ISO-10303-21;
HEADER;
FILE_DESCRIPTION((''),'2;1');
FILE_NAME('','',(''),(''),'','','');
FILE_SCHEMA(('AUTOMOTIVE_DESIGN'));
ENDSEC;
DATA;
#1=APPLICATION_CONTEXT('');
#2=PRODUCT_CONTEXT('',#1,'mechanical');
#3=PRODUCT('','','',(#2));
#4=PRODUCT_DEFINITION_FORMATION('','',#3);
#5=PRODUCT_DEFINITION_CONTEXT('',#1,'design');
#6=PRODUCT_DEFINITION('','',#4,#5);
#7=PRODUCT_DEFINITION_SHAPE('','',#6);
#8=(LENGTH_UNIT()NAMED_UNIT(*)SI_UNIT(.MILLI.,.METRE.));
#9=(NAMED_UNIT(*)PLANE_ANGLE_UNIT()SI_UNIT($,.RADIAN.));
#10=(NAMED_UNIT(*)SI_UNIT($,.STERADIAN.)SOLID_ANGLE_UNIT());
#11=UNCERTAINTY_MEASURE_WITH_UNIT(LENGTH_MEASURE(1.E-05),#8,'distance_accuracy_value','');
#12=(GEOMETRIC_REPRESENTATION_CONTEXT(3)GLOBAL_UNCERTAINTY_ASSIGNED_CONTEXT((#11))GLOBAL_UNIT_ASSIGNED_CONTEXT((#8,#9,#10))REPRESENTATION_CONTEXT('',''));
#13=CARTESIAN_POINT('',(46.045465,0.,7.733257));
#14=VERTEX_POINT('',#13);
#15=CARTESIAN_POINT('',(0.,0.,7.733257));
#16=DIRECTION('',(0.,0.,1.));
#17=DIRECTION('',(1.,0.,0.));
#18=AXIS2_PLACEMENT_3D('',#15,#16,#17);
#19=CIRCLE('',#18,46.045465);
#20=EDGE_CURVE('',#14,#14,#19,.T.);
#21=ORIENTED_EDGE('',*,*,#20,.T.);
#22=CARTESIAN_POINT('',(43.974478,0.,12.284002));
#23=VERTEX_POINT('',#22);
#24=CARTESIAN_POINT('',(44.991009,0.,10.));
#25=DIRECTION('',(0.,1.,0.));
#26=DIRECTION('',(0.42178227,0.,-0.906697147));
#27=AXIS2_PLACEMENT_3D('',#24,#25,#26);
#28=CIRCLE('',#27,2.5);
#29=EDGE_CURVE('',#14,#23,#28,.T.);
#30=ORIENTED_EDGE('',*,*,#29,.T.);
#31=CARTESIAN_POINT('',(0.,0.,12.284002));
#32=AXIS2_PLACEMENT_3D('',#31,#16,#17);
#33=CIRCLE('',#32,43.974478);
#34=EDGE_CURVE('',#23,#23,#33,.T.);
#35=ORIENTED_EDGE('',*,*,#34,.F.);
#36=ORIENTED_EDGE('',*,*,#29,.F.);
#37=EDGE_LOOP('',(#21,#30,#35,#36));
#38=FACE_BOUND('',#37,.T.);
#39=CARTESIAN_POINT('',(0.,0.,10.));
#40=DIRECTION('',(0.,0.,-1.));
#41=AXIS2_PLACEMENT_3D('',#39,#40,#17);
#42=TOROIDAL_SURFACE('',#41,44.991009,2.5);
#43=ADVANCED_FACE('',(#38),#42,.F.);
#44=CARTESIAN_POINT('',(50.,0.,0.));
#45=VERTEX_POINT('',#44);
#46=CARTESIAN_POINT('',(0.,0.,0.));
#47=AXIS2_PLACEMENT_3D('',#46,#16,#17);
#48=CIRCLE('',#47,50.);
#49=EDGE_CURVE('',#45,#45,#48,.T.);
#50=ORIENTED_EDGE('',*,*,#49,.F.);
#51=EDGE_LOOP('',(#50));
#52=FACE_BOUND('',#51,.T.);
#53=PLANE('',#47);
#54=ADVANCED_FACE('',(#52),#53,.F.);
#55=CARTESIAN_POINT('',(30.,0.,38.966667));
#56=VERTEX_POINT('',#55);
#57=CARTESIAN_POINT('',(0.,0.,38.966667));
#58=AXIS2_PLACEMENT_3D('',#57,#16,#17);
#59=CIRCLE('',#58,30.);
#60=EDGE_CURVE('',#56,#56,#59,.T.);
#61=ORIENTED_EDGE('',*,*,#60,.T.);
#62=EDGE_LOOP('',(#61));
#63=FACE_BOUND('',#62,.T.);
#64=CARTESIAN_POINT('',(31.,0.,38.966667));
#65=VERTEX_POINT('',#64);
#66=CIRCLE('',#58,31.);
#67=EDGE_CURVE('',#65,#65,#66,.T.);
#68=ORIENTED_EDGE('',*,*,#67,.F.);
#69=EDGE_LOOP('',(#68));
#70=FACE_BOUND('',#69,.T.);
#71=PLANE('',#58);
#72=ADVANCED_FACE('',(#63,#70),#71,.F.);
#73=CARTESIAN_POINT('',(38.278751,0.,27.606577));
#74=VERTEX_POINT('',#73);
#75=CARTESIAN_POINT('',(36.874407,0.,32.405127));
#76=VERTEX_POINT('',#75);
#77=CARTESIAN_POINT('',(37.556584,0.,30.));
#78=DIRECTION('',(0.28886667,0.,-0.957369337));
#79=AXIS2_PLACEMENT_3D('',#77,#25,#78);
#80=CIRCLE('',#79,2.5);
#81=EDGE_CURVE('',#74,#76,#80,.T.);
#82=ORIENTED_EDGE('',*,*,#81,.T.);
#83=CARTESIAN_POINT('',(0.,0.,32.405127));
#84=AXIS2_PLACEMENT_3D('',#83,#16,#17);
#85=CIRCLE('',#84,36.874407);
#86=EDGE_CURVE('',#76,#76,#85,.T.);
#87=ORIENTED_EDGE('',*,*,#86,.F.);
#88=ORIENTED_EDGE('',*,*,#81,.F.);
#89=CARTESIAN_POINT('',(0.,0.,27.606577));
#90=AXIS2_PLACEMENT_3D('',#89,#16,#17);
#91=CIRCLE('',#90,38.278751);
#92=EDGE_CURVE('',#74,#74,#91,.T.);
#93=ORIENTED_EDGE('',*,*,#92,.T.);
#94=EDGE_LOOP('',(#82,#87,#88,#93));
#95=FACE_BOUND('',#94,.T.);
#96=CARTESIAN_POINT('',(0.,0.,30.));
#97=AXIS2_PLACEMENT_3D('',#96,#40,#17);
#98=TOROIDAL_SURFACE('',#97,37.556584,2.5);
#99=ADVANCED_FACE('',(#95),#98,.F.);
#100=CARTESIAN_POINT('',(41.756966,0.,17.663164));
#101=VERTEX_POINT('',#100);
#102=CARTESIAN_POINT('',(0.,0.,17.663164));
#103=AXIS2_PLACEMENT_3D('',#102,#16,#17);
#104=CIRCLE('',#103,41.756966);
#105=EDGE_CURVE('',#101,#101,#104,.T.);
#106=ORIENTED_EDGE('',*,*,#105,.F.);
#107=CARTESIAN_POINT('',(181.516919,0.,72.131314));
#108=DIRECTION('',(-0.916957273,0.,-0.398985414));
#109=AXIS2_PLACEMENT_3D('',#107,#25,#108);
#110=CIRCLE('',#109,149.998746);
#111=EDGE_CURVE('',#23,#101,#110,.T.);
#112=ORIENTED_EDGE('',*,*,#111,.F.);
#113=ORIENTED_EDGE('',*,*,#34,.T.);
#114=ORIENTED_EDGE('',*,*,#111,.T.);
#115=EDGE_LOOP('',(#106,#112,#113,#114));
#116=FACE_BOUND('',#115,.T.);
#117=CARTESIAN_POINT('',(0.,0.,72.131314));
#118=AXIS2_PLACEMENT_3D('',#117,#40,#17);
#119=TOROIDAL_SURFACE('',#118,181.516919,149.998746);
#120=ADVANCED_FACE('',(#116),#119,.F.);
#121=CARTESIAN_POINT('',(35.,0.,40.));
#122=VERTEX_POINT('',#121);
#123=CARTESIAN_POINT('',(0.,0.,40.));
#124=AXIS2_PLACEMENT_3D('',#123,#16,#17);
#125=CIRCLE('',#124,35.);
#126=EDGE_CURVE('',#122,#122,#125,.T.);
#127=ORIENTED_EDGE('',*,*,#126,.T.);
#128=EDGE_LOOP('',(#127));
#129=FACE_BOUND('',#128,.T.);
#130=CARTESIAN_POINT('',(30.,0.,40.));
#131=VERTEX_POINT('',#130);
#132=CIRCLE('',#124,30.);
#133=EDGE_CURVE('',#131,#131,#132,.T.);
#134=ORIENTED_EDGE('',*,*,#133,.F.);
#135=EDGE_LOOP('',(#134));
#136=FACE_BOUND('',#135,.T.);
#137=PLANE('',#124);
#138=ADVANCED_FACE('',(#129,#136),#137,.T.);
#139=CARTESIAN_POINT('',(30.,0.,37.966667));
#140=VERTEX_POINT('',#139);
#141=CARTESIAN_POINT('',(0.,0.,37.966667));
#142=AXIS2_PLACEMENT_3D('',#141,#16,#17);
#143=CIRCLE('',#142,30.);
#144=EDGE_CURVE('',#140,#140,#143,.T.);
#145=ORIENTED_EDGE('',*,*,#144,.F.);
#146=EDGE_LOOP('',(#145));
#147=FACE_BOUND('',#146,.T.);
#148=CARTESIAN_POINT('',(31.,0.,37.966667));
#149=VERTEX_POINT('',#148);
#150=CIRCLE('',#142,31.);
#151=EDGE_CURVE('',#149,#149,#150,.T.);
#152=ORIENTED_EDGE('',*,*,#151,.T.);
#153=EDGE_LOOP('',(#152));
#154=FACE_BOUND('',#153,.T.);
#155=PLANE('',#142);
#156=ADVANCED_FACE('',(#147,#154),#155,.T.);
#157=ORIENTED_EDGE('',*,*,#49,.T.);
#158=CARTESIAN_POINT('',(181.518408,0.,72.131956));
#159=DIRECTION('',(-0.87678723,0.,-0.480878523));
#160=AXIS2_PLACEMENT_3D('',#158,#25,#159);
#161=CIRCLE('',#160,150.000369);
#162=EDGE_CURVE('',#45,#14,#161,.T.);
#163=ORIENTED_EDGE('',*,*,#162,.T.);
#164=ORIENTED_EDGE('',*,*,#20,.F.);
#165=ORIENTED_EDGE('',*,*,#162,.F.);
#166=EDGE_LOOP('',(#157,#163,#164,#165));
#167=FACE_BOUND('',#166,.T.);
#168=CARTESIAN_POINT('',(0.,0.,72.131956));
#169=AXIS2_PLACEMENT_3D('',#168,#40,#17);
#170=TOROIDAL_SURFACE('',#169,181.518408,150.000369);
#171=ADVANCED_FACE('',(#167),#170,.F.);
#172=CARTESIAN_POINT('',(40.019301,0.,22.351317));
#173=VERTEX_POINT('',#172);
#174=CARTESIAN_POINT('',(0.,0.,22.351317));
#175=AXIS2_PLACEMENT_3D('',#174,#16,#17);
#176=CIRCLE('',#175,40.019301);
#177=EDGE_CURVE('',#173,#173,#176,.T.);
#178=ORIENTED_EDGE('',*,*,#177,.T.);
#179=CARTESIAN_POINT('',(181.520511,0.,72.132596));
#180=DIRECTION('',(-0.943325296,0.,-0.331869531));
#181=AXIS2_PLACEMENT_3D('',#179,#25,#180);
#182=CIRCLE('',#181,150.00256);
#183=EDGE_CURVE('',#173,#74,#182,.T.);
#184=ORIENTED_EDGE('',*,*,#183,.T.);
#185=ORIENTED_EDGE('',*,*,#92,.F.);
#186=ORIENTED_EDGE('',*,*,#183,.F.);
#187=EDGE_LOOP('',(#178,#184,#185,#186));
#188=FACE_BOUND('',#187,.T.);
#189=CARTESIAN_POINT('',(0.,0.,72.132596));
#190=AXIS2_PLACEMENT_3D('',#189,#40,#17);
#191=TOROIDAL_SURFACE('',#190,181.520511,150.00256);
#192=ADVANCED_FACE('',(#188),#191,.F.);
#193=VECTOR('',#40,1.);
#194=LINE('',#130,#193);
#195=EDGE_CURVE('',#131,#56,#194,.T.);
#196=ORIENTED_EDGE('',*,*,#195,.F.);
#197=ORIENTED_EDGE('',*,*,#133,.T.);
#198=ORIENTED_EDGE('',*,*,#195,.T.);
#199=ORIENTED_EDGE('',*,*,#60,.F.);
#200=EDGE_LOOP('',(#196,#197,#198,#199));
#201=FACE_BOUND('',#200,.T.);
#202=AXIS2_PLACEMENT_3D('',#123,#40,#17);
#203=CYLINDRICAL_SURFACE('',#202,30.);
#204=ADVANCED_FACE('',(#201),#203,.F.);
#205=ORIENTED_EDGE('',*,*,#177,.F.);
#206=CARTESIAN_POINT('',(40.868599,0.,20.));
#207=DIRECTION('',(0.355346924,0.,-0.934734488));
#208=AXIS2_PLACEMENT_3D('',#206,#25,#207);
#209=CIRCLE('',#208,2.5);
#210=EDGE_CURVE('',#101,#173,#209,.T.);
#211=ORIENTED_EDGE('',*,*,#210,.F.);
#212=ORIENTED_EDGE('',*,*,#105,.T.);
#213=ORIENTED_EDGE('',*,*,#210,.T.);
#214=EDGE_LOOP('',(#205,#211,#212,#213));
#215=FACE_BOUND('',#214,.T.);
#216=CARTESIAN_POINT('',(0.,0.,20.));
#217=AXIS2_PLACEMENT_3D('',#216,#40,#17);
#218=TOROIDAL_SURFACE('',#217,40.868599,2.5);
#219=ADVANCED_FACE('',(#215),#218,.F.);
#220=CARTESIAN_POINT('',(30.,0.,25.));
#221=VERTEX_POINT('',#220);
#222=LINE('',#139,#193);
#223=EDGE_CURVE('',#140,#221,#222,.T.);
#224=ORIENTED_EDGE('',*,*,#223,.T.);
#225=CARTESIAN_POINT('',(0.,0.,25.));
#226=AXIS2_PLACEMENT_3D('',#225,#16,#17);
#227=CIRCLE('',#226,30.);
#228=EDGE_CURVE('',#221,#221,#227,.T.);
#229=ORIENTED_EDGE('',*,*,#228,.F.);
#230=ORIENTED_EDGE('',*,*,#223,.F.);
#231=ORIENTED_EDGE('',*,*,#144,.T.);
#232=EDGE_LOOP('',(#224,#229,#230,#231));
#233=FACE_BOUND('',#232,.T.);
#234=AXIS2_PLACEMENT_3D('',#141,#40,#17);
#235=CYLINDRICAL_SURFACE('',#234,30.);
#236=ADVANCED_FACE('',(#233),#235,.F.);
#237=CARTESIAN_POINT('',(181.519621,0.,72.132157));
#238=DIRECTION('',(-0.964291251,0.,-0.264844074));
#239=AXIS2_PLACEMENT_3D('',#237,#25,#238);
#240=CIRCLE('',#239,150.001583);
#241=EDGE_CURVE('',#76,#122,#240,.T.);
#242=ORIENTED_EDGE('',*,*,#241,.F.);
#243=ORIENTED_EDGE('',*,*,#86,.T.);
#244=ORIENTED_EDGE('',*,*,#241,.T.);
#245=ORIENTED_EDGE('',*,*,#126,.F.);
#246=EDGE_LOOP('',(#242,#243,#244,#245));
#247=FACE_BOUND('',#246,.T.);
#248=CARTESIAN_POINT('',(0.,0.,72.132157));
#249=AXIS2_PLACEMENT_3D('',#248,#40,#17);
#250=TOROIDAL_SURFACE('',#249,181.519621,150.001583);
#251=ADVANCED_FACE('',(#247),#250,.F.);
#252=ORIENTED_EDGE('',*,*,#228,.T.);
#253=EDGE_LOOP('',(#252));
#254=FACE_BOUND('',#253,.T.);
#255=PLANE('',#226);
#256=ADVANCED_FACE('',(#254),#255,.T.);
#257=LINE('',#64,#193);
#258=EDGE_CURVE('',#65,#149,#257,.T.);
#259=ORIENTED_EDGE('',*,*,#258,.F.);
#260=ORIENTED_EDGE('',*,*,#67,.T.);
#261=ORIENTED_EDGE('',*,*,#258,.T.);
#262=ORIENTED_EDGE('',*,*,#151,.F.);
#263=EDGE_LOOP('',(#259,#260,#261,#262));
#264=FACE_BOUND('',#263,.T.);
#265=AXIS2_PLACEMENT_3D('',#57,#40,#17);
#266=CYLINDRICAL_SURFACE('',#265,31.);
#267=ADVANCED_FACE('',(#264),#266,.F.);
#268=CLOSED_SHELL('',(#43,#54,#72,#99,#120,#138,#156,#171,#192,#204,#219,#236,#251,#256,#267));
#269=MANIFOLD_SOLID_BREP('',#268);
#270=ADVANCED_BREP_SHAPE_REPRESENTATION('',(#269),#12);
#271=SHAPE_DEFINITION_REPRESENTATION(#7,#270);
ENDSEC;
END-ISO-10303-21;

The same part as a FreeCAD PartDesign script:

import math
import FreeCAD as App
import Part
import Sketcher
from FreeCAD import Vector

doc = App.newDocument("Part")
body = doc.addObject("PartDesign::Body", "Body")

sketch1 = body.newObject("Sketcher::SketchObject", "Sketch")
sketch1.AttachmentSupport = (doc.getObject("XZ_Plane"), [""])
sketch1.MapMode = "FlatFace"
sketch1.addGeometry(Part.LineSegment(Vector(0, 0, 0), Vector(50, 0, 0)), False)
sketch1.addGeometry(Part.ArcOfCircle(Part.Circle(Vector(181.5, 72.1, 0), Vector(0, 0, 1), 150), math.radians(-154.58), math.radians(-151.26)), False)
sketch1.addGeometry(Part.ArcOfCircle(Part.Circle(Vector(45, 10, 0), Vector(0, 0, 1), 2.5), math.radians(114), math.radians(295)), False)
sketch1.addGeometry(Part.ArcOfCircle(Part.Circle(Vector(181.5, 72.1, 0), Vector(0, 0, 1), 150), math.radians(-158.71), math.radians(-156.49)), False)
sketch1.addGeometry(Part.ArcOfCircle(Part.Circle(Vector(40.9, 20, 0), Vector(0, 0, 1), 2.5), math.radians(110), math.radians(291)), False)
sketch1.addGeometry(Part.ArcOfCircle(Part.Circle(Vector(181.5, 72.1, 0), Vector(0, 0, 1), 150), math.radians(-162.73), math.radians(-160.62)), False)
sketch1.addGeometry(Part.ArcOfCircle(Part.Circle(Vector(37.6, 30, 0), Vector(0, 0, 1), 2.5), math.radians(106), math.radians(287)), False)
sketch1.addGeometry(Part.ArcOfCircle(Part.Circle(Vector(181.5, 72.1, 0), Vector(0, 0, 1), 150), math.radians(-167.63), math.radians(-164.64)), False)
sketch1.addGeometry(Part.LineSegment(Vector(35, 40, 0), Vector(30, 40, 0)), False)
sketch1.addGeometry(Part.LineSegment(Vector(30, 40, 0), Vector(30, 39, 0)), False)
sketch1.addGeometry(Part.LineSegment(Vector(30, 39, 0), Vector(31, 39, 0)), False)
sketch1.addGeometry(Part.LineSegment(Vector(31, 39, 0), Vector(31, 38, 0)), False)
sketch1.addGeometry(Part.LineSegment(Vector(31, 38, 0), Vector(30, 38, 0)), False)
sketch1.addGeometry(Part.LineSegment(Vector(30, 38, 0), Vector(30, 25, 0)), False)
sketch1.addGeometry(Part.LineSegment(Vector(30, 25, 0), Vector(0, 25, 0)), False)
sketch1.addGeometry(Part.LineSegment(Vector(0, 25, 0), Vector(0, 0, 0)), False)
sketch1.addConstraint(Sketcher.Constraint("Coincident", 0, 2, 1, 2))
sketch1.addConstraint(Sketcher.Constraint("Coincident", 1, 1, 2, 2))
sketch1.addConstraint(Sketcher.Constraint("Coincident", 2, 1, 3, 2))
sketch1.addConstraint(Sketcher.Constraint("Coincident", 3, 1, 4, 2))
sketch1.addConstraint(Sketcher.Constraint("Coincident", 4, 1, 5, 2))
sketch1.addConstraint(Sketcher.Constraint("Coincident", 5, 1, 6, 2))
sketch1.addConstraint(Sketcher.Constraint("Coincident", 6, 1, 7, 2))
sketch1.addConstraint(Sketcher.Constraint("Coincident", 7, 1, 8, 1))
sketch1.addConstraint(Sketcher.Constraint("Coincident", 8, 2, 9, 1))
sketch1.addConstraint(Sketcher.Constraint("Coincident", 9, 2, 10, 1))
sketch1.addConstraint(Sketcher.Constraint("Coincident", 10, 2, 11, 1))
sketch1.addConstraint(Sketcher.Constraint("Coincident", 11, 2, 12, 1))
sketch1.addConstraint(Sketcher.Constraint("Coincident", 12, 2, 13, 1))
sketch1.addConstraint(Sketcher.Constraint("Coincident", 13, 2, 14, 1))
sketch1.addConstraint(Sketcher.Constraint("Coincident", 14, 2, 15, 1))
sketch1.addConstraint(Sketcher.Constraint("Coincident", 15, 2, 0, 1))
sketch1.addConstraint(Sketcher.Constraint("Horizontal", 0))
sketch1.addConstraint(Sketcher.Constraint("Horizontal", 8))
sketch1.addConstraint(Sketcher.Constraint("Vertical", 9))
sketch1.addConstraint(Sketcher.Constraint("Horizontal", 10))
sketch1.addConstraint(Sketcher.Constraint("Vertical", 11))
sketch1.addConstraint(Sketcher.Constraint("Horizontal", 12))
sketch1.addConstraint(Sketcher.Constraint("Vertical", 13))
sketch1.addConstraint(Sketcher.Constraint("Horizontal", 14))
sketch1.addConstraint(Sketcher.Constraint("Vertical", 15))
sketch1.addConstraint(Sketcher.Constraint("Coincident", 15, 2, -1, 1))
sketch1.addConstraint(Sketcher.Constraint("Equal", 2, 4))
sketch1.addConstraint(Sketcher.Constraint("Equal", 4, 6))
sketch1.addConstraint(Sketcher.Constraint("Vertical", 9, 2, 12, 2))
sketch1.addConstraint(Sketcher.Constraint("Equal", 12, 11))
sketch1.addConstraint(Sketcher.Constraint("Radius", 2, 2.5))
sketch1.addConstraint(Sketcher.Constraint("DistanceX", 0, 1, 0, 2, 50.0))
sketch1.addConstraint(Sketcher.Constraint("DistanceX", 8, 2, 8, 1, 5.0))
sketch1.addConstraint(Sketcher.Constraint("DistanceX", 10, 1, 10, 2, 1.0))
sketch1.addConstraint(Sketcher.Constraint("DistanceX", 14, 2, 14, 1, 30.0))
sketch1.addConstraint(Sketcher.Constraint("DistanceY", 15, 2, 15, 1, 25.0))
sketch1.addConstraint(Sketcher.Constraint("DistanceY", -1, 1, 2, 3, 10.0))
sketch1.addConstraint(Sketcher.Constraint("DistanceY", -1, 1, 4, 3, 20.0))
sketch1.addConstraint(Sketcher.Constraint("DistanceY", -1, 1, 6, 3, 30.0))
sketch1.addConstraint(Sketcher.Constraint("DistanceY", -1, 1, 7, 1, 40.0))
sketch1.addConstraint(Sketcher.Constraint("Radius", 1, 150.000369))
sketch1.addConstraint(Sketcher.Constraint("Radius", 5, 150.00256))
sketch1.addConstraint(Sketcher.Constraint("DistanceY", -1, 1, 2, 1, 12.284002))
sketch1.addConstraint(Sketcher.Constraint("Radius", 3, 149.998746))
sketch1.addConstraint(Sketcher.Constraint("Radius", 7, 150.001583))
sketch1.addConstraint(Sketcher.Constraint("DistanceX", -1, 1, 4, 3, 40.868599))
sketch1.addConstraint(Sketcher.Constraint("DistanceX", -1, 1, 4, 1, 40.019301))
sketch1.addConstraint(Sketcher.Constraint("DistanceX", 2, 3, 1, 3, 136.527399))
sketch1.addConstraint(Sketcher.Constraint("DistanceX", 2, 3, 5, 3, 136.529501))
sketch1.addConstraint(Sketcher.Constraint("DistanceY", 1, 3, 7, 3, 0.000201))
sketch1.addConstraint(Sketcher.Constraint("DistanceX", 3, 3, 7, 3, 0.002702))
sketch1.addConstraint(Sketcher.Constraint("DistanceY", 9, 2, 9, 1, 1.033333))
sketch1.addConstraint(Sketcher.Constraint("DistanceX", -1, 1, 1, 3, 181.518408))
sketch1.addConstraint(Sketcher.Constraint("DistanceX", 6, 3, 1, 1, 8.488881))
revolution = body.newObject("PartDesign::Revolution", "Revolution")
revolution.Profile = sketch1
revolution.ReferenceAxis = (sketch1, ["V_Axis"])
revolution.Angle = 360

doc.recompute()
